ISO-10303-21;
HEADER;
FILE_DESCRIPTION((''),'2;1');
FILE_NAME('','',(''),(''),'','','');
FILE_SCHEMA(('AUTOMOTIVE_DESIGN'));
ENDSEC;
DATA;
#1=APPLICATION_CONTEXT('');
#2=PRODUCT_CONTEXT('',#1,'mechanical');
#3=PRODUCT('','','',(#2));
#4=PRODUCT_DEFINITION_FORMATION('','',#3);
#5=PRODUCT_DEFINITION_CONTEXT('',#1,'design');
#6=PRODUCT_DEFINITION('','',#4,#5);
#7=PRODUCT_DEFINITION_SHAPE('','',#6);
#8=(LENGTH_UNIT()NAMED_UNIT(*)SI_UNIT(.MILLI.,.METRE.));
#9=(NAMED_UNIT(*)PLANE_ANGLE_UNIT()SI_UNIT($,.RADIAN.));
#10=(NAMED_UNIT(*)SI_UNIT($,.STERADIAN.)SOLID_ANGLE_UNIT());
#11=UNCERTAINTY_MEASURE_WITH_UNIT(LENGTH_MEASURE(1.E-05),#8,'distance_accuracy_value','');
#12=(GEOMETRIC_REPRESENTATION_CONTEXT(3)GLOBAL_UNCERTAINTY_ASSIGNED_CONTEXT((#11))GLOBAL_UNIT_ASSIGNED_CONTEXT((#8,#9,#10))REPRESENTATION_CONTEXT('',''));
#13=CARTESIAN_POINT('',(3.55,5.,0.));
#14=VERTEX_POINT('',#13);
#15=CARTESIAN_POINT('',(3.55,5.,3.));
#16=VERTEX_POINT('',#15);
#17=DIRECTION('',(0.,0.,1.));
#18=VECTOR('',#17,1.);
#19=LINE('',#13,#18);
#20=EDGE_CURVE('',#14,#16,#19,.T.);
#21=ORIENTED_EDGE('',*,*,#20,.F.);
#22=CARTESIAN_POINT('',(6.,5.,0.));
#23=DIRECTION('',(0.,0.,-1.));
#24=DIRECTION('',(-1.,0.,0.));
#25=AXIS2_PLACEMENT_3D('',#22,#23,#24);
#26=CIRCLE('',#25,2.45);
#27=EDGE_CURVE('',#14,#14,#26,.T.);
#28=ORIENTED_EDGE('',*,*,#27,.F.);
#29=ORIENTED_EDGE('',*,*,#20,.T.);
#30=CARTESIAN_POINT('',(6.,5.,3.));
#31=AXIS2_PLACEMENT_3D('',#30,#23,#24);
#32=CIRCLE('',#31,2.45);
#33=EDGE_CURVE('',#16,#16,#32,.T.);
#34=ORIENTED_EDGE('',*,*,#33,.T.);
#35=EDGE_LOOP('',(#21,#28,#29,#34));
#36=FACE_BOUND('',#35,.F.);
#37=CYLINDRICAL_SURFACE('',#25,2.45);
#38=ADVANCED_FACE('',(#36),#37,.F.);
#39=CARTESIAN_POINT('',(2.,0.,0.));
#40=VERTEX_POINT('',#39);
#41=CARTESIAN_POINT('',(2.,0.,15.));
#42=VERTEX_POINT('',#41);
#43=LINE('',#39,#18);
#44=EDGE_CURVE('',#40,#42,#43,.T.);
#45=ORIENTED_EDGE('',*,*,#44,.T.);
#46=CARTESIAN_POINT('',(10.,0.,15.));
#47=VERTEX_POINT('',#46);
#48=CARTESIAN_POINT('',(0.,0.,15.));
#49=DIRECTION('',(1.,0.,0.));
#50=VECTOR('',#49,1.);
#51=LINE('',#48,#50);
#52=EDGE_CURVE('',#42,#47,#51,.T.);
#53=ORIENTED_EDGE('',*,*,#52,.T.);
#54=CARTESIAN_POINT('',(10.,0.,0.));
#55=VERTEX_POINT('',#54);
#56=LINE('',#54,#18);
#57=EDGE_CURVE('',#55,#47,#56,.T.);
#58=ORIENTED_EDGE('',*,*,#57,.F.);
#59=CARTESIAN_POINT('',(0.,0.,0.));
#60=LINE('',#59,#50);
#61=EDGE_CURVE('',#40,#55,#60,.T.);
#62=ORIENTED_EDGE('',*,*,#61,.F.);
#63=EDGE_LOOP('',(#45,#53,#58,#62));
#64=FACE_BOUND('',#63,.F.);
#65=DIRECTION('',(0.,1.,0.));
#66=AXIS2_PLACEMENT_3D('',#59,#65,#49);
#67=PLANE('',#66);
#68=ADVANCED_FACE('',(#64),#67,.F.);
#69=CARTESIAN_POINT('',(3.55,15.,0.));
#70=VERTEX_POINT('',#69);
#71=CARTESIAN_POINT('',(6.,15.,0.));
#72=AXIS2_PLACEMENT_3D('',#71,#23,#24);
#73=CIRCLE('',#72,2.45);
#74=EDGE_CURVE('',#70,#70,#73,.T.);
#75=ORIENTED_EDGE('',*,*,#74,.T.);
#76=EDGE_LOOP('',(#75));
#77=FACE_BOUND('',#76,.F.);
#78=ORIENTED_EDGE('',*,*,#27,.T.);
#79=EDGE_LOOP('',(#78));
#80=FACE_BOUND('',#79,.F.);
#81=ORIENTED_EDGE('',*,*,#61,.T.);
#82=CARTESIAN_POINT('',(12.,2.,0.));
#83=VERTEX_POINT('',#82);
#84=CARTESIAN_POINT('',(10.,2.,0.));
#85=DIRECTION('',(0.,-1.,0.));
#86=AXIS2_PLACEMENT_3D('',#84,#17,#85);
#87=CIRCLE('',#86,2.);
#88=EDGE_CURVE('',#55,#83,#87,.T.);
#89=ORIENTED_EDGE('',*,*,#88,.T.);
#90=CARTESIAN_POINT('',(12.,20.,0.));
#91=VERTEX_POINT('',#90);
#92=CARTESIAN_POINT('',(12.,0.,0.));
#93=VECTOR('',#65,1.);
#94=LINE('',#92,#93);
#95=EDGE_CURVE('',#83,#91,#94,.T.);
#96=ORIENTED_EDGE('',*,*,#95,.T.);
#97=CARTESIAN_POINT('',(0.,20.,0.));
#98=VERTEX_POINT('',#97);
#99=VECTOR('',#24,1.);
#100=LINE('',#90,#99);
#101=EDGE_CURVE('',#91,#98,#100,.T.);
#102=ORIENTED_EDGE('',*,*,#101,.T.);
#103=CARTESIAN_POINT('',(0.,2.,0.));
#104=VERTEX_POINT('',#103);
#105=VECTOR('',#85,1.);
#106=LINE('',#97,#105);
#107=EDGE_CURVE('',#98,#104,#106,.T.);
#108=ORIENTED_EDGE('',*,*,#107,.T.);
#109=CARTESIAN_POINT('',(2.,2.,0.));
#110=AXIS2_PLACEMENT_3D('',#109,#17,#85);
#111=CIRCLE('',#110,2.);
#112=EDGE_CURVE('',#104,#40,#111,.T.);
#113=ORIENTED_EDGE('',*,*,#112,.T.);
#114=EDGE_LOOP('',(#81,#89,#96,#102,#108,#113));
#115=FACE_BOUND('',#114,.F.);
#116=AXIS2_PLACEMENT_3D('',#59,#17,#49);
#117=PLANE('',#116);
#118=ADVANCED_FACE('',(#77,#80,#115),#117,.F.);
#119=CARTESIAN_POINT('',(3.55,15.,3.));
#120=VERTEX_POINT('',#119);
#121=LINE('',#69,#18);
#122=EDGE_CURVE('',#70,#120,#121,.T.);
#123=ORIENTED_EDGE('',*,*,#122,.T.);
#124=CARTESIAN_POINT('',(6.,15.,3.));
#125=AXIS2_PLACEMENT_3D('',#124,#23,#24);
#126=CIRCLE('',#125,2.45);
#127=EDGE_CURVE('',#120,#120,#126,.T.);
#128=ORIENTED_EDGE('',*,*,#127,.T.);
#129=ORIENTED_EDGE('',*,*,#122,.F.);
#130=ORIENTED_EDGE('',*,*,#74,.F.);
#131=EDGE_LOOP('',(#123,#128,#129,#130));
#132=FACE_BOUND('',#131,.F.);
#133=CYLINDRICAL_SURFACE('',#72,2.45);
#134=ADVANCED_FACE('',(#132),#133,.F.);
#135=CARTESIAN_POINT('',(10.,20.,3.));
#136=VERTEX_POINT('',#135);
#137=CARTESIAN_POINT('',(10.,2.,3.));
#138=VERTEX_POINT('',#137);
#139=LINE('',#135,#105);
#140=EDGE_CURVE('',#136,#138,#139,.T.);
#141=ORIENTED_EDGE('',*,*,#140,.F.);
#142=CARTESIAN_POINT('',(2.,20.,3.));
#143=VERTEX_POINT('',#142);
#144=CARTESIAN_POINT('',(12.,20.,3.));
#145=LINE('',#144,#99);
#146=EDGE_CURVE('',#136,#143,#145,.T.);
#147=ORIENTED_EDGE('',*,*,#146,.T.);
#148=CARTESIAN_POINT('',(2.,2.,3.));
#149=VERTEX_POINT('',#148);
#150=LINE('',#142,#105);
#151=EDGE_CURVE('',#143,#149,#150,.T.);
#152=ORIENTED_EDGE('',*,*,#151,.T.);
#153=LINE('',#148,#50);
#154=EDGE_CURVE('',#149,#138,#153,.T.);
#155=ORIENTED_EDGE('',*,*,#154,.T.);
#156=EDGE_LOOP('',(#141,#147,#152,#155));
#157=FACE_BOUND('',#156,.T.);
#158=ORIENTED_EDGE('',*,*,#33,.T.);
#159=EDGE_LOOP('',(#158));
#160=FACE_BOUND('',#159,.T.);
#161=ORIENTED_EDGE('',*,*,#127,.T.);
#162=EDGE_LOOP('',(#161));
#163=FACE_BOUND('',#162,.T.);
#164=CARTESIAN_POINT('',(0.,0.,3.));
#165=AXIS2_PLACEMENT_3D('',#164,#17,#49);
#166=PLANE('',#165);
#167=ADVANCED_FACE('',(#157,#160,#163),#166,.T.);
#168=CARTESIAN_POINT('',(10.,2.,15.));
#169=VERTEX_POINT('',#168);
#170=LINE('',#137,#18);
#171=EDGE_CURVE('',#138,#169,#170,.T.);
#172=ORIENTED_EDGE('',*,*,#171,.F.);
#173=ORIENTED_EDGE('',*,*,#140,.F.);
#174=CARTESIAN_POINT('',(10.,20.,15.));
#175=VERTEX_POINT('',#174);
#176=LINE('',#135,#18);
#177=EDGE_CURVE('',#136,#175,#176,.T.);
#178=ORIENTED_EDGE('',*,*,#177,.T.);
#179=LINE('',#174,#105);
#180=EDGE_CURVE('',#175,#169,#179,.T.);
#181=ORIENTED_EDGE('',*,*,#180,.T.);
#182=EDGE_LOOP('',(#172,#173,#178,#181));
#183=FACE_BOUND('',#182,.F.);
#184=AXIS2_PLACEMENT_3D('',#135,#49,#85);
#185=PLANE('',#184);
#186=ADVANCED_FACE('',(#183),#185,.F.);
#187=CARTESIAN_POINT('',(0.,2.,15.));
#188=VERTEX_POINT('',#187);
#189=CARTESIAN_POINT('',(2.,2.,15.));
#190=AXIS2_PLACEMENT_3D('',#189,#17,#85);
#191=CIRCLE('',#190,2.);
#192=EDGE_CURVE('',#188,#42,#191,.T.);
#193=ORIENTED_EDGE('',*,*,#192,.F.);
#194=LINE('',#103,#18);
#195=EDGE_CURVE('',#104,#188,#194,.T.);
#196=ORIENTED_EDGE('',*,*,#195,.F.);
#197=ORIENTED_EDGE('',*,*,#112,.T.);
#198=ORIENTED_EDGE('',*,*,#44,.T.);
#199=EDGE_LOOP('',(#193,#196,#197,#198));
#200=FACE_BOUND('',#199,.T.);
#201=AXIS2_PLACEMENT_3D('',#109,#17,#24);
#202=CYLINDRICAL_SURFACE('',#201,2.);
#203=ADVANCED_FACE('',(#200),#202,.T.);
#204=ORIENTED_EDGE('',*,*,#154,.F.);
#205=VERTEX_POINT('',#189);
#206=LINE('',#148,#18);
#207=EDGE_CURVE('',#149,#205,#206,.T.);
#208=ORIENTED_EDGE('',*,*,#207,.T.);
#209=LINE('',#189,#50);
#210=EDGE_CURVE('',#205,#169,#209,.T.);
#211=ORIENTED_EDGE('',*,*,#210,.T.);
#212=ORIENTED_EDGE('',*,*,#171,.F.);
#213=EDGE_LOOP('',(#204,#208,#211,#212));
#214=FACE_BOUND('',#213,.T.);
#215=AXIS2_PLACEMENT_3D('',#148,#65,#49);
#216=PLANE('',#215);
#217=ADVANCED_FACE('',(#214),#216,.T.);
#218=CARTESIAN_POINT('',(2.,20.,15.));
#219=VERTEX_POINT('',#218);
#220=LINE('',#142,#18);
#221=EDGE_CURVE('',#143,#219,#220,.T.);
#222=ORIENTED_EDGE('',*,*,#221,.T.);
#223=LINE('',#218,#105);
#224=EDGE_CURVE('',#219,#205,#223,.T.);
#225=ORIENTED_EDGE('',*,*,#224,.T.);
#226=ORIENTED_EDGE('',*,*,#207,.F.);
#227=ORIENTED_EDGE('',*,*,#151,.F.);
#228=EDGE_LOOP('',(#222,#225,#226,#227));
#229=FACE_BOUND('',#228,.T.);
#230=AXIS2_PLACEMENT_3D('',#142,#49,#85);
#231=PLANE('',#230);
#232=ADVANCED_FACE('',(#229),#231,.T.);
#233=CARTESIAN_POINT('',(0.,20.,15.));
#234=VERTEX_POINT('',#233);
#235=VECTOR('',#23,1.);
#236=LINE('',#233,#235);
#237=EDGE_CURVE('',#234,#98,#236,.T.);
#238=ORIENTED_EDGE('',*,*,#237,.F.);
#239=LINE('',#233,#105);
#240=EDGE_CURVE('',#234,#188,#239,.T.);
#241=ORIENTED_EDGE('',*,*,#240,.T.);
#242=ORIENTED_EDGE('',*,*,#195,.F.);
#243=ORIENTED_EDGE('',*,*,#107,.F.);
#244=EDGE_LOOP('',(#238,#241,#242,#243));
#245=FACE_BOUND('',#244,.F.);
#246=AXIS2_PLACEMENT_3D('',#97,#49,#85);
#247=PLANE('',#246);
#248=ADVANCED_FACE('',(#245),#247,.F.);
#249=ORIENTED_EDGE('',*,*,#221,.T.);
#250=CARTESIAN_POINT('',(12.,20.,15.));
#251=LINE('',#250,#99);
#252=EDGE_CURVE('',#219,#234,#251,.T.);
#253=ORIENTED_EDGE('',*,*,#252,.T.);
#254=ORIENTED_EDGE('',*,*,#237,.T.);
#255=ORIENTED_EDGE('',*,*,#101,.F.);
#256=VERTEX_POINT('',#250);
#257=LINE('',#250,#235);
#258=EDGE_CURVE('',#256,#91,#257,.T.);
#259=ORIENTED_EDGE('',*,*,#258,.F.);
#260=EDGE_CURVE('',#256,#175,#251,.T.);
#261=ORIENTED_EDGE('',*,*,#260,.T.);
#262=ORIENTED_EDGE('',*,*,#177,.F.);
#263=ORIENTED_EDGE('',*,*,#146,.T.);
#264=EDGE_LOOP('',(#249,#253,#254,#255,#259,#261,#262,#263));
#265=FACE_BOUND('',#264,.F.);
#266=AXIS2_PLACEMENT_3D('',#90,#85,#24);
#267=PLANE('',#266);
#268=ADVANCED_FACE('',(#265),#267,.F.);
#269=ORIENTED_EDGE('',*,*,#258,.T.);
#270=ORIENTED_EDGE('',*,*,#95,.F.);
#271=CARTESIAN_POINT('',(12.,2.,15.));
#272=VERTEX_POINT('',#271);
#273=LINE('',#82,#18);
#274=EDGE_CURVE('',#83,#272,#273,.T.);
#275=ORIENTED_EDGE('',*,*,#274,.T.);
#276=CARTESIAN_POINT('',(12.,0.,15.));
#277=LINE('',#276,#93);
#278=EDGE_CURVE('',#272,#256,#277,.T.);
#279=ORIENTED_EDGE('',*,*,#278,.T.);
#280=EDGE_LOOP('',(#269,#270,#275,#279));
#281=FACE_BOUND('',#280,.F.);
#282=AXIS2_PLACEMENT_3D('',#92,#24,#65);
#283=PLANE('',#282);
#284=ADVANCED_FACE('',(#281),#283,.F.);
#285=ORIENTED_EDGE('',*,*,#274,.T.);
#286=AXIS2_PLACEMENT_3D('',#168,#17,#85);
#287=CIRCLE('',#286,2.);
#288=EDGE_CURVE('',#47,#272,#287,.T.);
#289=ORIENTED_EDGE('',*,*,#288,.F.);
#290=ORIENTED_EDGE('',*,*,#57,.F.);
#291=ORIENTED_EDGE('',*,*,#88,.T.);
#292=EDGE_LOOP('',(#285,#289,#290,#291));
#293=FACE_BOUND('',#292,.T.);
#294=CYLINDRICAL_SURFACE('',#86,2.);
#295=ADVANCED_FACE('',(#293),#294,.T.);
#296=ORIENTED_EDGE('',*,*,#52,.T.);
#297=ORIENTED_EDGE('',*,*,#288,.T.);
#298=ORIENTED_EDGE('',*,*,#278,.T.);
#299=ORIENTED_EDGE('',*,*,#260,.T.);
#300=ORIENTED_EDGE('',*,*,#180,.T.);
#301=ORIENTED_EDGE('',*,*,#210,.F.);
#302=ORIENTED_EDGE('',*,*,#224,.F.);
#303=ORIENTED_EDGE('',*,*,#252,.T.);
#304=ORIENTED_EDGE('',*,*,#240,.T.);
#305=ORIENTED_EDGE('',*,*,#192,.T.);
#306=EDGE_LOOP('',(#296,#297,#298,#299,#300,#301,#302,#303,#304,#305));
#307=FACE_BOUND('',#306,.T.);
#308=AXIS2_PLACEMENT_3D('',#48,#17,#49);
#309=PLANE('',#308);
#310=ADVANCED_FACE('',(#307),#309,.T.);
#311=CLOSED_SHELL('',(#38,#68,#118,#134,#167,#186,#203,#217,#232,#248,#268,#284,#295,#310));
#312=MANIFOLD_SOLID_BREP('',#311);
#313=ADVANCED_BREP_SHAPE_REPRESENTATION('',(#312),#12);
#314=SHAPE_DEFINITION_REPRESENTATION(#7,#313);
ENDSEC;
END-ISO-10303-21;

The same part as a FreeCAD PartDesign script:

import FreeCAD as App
import Part
import Sketcher
Q = App.Units.Quantity


def edges_at(feature, points):
    """Names of the edges that pass closest to the given points."""
    edges = feature.Shape.Edges
    near = lambda p: min(range(len(edges)), key=lambda i: edges[i].distToShape(Part.Vertex(*p))[0])
    return sorted({f"Edge{near(p) + 1}" for p in points})


def add_polygon(sketch, points):
    """Adds a closed chain of lines whose ends are joined by coincident constraints."""
    first, n = sketch.GeometryCount, len(points)
    for a, b in zip(points, points[1:] + points[:1]):
        sketch.addGeometry(Part.LineSegment(App.Vector(*a, 0), App.Vector(*b, 0)), False)
    for i in range(n):
        sketch.addConstraint(Sketcher.Constraint("Coincident", first + i, 2, first + (i + 1) % n, 1))

doc = App.newDocument("Part")
body = doc.addObject("PartDesign::Body", "Body")

sketch1 = body.newObject("Sketcher::SketchObject", "Sketch")
sketch1.AttachmentSupport = (doc.getObject("XY_Plane"), [""])
sketch1.MapMode = "FlatFace"
add_polygon(sketch1, [(0, 20), (0, 0), (12, 0), (12, 20)])
sketch1.addConstraint([
    Sketcher.Constraint("Vertical", 0),
    Sketcher.Constraint("Horizontal", 1),
    Sketcher.Constraint("Vertical", 2),
    Sketcher.Constraint("Horizontal", 3),
    Sketcher.Constraint("Coincident", 0, 2, -1, 1),
    Sketcher.Constraint("DistanceX", 1, 1, 1, 2, Q("12 mm")),
    Sketcher.Constraint("DistanceY", 0, 2, 0, 1, Q("20 mm")),
])
pad1 = body.newObject("PartDesign::Pad", "Pad")
pad1.Profile = sketch1
pad1.Length = 3

sketch2 = body.newObject("Sketcher::SketchObject", "Sketch001")
sketch2.AttachmentSupport = (doc.getObject("XY_Plane"), [""])
sketch2.MapMode = "FlatFace"
sketch2.AttachmentOffset = App.Placement(App.Vector(0, 0, 3), App.Rotation())
add_polygon(sketch2, [(2, 20), (0, 20), (0, 0), (12, 0), (12, 20), (10, 20), (10, 2), (2, 2)])
sketch2.addConstraint([
    Sketcher.Constraint("Horizontal", 0),
    Sketcher.Constraint("Vertical", 1),
    Sketcher.Constraint("Horizontal", 2),
    Sketcher.Constraint("Vertical", 3),
    Sketcher.Constraint("Horizontal", 4),
    Sketcher.Constraint("Vertical", 5),
    Sketcher.Constraint("Horizontal", 6),
    Sketcher.Constraint("Vertical", 7),
    Sketcher.Constraint("Coincident", 1, 2, -1, 1),
    Sketcher.Constraint("Horizontal", 0, 2, 3, 2),
    Sketcher.Constraint("Equal", 0, 4),
    Sketcher.Constraint("DistanceX", 0, 2, 0, 1, Q("2 mm")),
    Sketcher.Constraint("DistanceY", -1, 1, 5, 2, Q("2 mm")),
    Sketcher.Constraint("DistanceX", 2, 1, 2, 2, Q("12 mm")),
    Sketcher.Constraint("DistanceY", 1, 2, 1, 1, Q("20 mm")),
])
pad2 = body.newObject("PartDesign::Pad", "Pad001")
pad2.Profile = sketch2
pad2.Length = 12

sketch3 = body.newObject("Sketcher::SketchObject", "Sketch002")
sketch3.AttachmentSupport = (doc.getObject("XY_Plane"), [""])
sketch3.MapMode = "FlatFace"
sketch3.addGeometry([
    Part.Circle(App.Vector(6, 5, 0), App.Vector(0, 0, 1), 2.45),
    Part.Circle(App.Vector(6, 15, 0), App.Vector(0, 0, 1), 2.45),
], False)
sketch3.addConstraint([
    Sketcher.Constraint("Equal", 0, 1),
    Sketcher.Constraint("Vertical", 0, 3, 1, 3),
    Sketcher.Constraint("Diameter", 0, Q("4.9 mm")),
    Sketcher.Constraint("DistanceY", -1, 1, 0, 3, Q("5 mm")),
    Sketcher.Constraint("DistanceY", 0, 3, 1, 3, Q("10 mm")),
    Sketcher.Constraint("DistanceX", -1, 1, 0, 3, Q("6 mm")),
])
pocket1 = body.newObject("PartDesign::Pocket", "Pocket")
pocket1.Profile = sketch3
pocket1.Length = 3
pocket1.Reversed = True
doc.recompute()

fillet = body.newObject("PartDesign::Fillet", "Fillet")
fillet.Base = (pocket1, edges_at(pocket1, [(12, 0, 7.5), (0, 0, 7.5)]))
fillet.Radius = 2

doc.recompute()
